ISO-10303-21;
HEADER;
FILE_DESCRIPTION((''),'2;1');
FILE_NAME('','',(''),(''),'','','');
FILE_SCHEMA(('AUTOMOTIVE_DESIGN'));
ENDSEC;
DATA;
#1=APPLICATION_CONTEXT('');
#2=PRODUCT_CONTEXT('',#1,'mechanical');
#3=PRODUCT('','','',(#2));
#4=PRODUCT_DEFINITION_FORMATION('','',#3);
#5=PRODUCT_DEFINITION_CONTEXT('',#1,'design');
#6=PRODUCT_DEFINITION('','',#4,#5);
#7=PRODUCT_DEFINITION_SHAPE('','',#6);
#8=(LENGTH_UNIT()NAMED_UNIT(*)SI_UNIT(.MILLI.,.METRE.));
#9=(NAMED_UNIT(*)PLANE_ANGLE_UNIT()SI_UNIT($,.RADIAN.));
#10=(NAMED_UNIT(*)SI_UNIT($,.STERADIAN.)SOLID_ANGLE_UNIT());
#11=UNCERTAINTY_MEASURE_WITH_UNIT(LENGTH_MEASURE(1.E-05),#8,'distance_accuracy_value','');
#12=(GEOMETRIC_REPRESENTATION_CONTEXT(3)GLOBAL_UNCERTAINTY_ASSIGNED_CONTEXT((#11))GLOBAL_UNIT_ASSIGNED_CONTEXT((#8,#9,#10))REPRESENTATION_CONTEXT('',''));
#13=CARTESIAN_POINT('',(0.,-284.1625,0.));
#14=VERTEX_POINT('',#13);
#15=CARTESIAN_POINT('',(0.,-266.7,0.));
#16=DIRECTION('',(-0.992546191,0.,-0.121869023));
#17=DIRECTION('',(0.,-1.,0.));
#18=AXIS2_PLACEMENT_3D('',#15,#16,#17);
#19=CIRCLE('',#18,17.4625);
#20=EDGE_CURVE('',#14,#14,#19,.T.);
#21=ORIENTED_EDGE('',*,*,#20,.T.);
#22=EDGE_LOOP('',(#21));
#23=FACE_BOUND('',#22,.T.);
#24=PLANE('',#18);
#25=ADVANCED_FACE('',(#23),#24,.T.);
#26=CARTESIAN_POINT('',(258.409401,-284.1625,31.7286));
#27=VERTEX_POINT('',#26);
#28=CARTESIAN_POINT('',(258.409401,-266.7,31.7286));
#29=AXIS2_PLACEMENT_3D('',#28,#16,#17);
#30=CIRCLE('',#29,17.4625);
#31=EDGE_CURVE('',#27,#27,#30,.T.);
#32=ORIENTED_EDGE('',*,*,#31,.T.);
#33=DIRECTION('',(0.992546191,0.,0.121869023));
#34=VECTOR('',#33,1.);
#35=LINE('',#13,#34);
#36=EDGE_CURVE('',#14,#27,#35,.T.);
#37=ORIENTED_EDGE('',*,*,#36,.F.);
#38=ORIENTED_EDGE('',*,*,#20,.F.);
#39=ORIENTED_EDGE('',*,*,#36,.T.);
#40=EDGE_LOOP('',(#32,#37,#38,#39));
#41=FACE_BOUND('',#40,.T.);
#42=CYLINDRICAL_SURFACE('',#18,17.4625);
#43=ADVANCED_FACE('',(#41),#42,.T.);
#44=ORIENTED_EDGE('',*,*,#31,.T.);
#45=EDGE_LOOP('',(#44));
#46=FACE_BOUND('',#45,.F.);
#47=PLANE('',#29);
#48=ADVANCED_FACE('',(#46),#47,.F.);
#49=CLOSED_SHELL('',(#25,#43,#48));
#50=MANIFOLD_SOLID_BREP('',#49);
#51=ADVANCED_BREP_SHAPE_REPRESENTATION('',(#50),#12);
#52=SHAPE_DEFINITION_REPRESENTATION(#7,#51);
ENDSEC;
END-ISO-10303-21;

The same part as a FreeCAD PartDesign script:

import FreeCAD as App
import Part
import Sketcher

V = App.Vector
Q = App.Units.Quantity

doc = App.newDocument("Part")
params = doc.addObject("Spreadsheet::Sheet", "Params")
for row, (alias, value) in enumerate([
    ("sketch1_diameter", "1.375 in"),
    ("pad1_length", "10.25 in"),
], start=1):
    params.set(f"A{row}", alias)
    params.set(f"B{row}", "=" + value)
    params.setAlias(f"B{row}", alias)

body = doc.addObject("PartDesign::Body", "Body")

sketch1 = body.newObject("Sketcher::SketchObject", "Sketch")
sketch1.Placement = App.Placement(V(0, 0, 0), App.Rotation(V(0, -1, 0), V(-0.121869023, 0, 0.992546191), V(-0.992546191, 0, -0.121869023), "ZXY"))
sketch1.addGeometry(Part.Circle(V(266.7, 0, 0), V(0, 0, 1), 17.4625), False)
sketch1.addConstraint([
    Sketcher.Constraint("PointOnObject", 0, 3, -1),
    Sketcher.Constraint("Diameter", 0, Q("1.375 in")),
    Sketcher.Constraint("DistanceX", -1, 1, 0, 3, Q("10.5 in")),
])
sketch1.setExpression("Constraints[1]", "Params.sketch1_diameter")
pad1 = body.newObject("PartDesign::Pad", "Pad")
pad1.Profile = sketch1
pad1.setExpression("Length", "Params.pad1_length")
pad1.Reversed = True

doc.recompute()
